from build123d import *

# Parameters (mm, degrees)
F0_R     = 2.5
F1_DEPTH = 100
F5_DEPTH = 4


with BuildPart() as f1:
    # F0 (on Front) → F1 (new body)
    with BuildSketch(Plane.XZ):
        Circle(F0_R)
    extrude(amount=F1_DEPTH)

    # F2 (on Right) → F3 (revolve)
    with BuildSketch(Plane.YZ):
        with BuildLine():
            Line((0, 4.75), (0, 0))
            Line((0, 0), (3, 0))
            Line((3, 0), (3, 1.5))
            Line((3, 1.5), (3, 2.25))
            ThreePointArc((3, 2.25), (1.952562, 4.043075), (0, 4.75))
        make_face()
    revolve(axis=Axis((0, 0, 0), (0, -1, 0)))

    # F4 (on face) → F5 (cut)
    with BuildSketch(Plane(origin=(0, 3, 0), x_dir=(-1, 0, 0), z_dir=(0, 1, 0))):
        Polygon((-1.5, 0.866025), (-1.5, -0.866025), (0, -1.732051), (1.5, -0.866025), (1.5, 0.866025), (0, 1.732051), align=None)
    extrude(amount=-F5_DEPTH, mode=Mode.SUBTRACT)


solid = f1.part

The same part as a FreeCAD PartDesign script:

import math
import FreeCAD as App
import Part
import Sketcher
from FreeCAD import Vector
Q = App.Units.Quantity

doc = App.newDocument("Part")
body = doc.addObject("PartDesign::Body", "Body")

# Sketch on XZ plane
sketch1 = doc.addObject("Sketcher::SketchObject", "Sketch")
body.addObject(sketch1)
sketch1.AttachmentSupport = (doc.XZ_Plane, [""])
sketch1.MapMode = "FlatFace"
sketch1.addGeometry(Part.Circle(Vector(0, 0, 0), Vector(0, 0, 1), 2.5), False)
sketch1.addConstraint([
    Sketcher.Constraint("Coincident", 0, 3, -1, 1),
    Sketcher.Constraint("Diameter", 0, 5.0),
])
pad1 = doc.addObject("PartDesign::Pad", "Pad")
body.addObject(pad1)
pad1.Profile = sketch1
pad1.Length = 100

# Sketch on YZ plane
sketch2 = doc.addObject("Sketcher::SketchObject", "Sketch001")
body.addObject(sketch2)
sketch2.AttachmentSupport = (doc.YZ_Plane, [""])
sketch2.MapMode = "FlatFace"
sketch2.addGeometry([
    Part.LineSegment(Vector(0, 4.8, 0), Vector(0, 0, 0)),
    Part.LineSegment(Vector(0, 0, 0), Vector(3, 0, 0)),
    Part.LineSegment(Vector(3, 0, 0), Vector(3, 2.2, 0)),
    Part.ArcOfCircle(Part.Circle(Vector(0, 1.7, 0), Vector(0, 0, 1), 3.1), math.radians(10), math.radians(90)),
], False)
sketch2.addConstraint([
    Sketcher.Constraint("Coincident", 0, 2, 1, 1),
    Sketcher.Constraint("Coincident", 1, 2, 2, 1),
    Sketcher.Constraint("Coincident", 2, 2, 3, 1),
    Sketcher.Constraint("Coincident", 3, 2, 0, 1),
    Sketcher.Constraint("Vertical", 0),
    Sketcher.Constraint("Horizontal", 1),
    Sketcher.Constraint("Vertical", 2),
    Sketcher.Constraint("Coincident", 0, 2, -1, 1),
    Sketcher.Constraint("PointOnObject", 3, 3, -2),
    Sketcher.Constraint("DistanceX", 1, 1, 1, 2, 3.0),
    Sketcher.Constraint("Radius", 3, 3.050001),
    Sketcher.Constraint("DistanceY", 0, 2, 0, 1, 4.75),
])
revolution = doc.addObject("PartDesign::Revolution", "Revolution")
body.addObject(revolution)
revolution.Profile = sketch2
revolution.ReferenceAxis = (sketch2, ["H_Axis"])
revolution.Angle = 360

# Sketch on XZ plane
sketch3 = doc.addObject("Sketcher::SketchObject", "Sketch002")
body.addObject(sketch3)
sketch3.AttachmentSupport = (doc.XZ_Plane, [""])
sketch3.MapMode = "FlatFace"
sketch3.AttachmentOffset = App.Placement(Vector(0, 0, -3), App.Rotation())
sketch3.addGeometry([
    Part.LineSegment(Vector(1.5, 0.9, 0), Vector(1.5, -0.9, 0)),  # 0
    Part.LineSegment(Vector(1.5, -0.9, 0), Vector(0, -1.7, 0)),  # 1
    Part.LineSegment(Vector(0, -1.7, 0), Vector(-1.5, -0.9, 0)),  # 2
    Part.LineSegment(Vector(-1.5, -0.9, 0), Vector(-1.5, 0.9, 0)),  # 3
    Part.LineSegment(Vector(-1.5, 0.9, 0), Vector(0, 1.7, 0)),  # 4
    Part.LineSegment(Vector(0, 1.7, 0), Vector(1.5, 0.9, 0)),  # 5
], False)
sketch3.addConstraint([
    Sketcher.Constraint("Coincident", 0, 2, 1, 1),
    Sketcher.Constraint("Coincident", 1, 2, 2, 1),
    Sketcher.Constraint("Coincident", 2, 2, 3, 1),
    Sketcher.Constraint("Coincident", 3, 2, 4, 1),
    Sketcher.Constraint("Coincident", 4, 2, 5, 1),
    Sketcher.Constraint("Coincident", 5, 2, 0, 1),
    Sketcher.Constraint("Vertical", 0),
    Sketcher.Constraint("Vertical", 3),
    Sketcher.Constraint("Symmetric", 0, 2, 3, 2, -1, 1),
    Sketcher.Constraint("Symmetric", 1, 2, 4, 2, -1, 1),
    Sketcher.Constraint("PointOnObject", 1, 2, -2),
    Sketcher.Constraint("Parallel", 2, 5),
    Sketcher.Constraint("Horizontal", 0, 2, 2, 2),
    Sketcher.Constraint("Angle", 1, Q("-149.999983 deg")),
    Sketcher.Constraint("DistanceX", 2, 2, 0, 2, 3.0),
    Sketcher.Constraint("DistanceY", 0, 2, 0, 1, 1.73205),
])
pocket1 = doc.addObject("PartDesign::Pocket", "Pocket")
body.addObject(pocket1)
pocket1.Profile = sketch3
pocket1.Length = 4
pocket1.Reversed = True

doc.recompute()
